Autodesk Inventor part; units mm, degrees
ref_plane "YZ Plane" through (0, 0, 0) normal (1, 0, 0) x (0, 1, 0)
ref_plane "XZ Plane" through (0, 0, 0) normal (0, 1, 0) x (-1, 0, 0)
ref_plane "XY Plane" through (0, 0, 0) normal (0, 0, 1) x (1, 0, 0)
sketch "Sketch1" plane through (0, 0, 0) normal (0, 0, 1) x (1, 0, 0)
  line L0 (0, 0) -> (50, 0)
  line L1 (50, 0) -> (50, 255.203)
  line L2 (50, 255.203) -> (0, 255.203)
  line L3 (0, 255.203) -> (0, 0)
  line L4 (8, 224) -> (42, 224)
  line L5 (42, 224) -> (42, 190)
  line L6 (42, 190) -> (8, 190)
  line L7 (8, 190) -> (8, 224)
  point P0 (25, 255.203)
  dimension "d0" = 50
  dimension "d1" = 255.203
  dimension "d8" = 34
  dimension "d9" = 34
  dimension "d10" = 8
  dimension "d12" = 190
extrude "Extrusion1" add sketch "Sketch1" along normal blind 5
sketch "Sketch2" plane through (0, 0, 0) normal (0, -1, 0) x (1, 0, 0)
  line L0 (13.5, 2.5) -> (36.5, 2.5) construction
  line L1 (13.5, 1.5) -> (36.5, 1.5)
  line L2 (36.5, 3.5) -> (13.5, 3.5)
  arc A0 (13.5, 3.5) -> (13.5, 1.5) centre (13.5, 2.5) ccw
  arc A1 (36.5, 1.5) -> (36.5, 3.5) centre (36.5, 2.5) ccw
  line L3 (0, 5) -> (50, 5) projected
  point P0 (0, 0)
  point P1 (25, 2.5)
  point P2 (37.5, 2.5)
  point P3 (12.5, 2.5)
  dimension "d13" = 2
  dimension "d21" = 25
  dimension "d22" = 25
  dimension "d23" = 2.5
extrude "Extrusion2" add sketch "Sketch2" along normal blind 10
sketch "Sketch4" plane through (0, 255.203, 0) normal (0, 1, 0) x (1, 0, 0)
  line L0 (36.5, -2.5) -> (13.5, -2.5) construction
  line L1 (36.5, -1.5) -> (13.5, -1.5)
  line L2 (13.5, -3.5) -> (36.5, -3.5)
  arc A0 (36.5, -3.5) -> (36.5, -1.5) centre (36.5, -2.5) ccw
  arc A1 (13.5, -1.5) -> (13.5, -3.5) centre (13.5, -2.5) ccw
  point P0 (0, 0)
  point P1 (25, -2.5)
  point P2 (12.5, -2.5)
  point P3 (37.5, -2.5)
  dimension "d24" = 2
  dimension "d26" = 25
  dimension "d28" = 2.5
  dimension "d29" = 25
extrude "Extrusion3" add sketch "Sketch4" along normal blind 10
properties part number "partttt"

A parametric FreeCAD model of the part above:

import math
import FreeCAD as App
import Part
import Sketcher
Q = App.Units.Quantity

doc = App.newDocument("Part")
body = doc.addObject("PartDesign::Body", "Body")

# Sketch on XY plane
sketch1 = doc.addObject("Sketcher::SketchObject", "Sketch")
body.addObject(sketch1)
sketch1.AttachmentSupport = (doc.XY_Plane, [""])
sketch1.MapMode = "FlatFace"
sketch1.addGeometry([
    Part.LineSegment(App.Vector(0, 255.203, 0), App.Vector(0, 0, 0)),  # 0
    Part.LineSegment(App.Vector(0, 0, 0), App.Vector(50, 0, 0)),  # 1
    Part.LineSegment(App.Vector(50, 0, 0), App.Vector(50, 255.203, 0)),  # 2
    Part.LineSegment(App.Vector(50, 255.203, 0), App.Vector(0, 255.203, 0)),  # 3
    Part.LineSegment(App.Vector(8, 190, 0), App.Vector(8, 224, 0)),  # 4
    Part.LineSegment(App.Vector(8, 224, 0), App.Vector(42, 224, 0)),  # 5
    Part.LineSegment(App.Vector(42, 224, 0), App.Vector(42, 190, 0)),  # 6
    Part.LineSegment(App.Vector(42, 190, 0), App.Vector(8, 190, 0)),  # 7
], False)
sketch1.addConstraint([
    Sketcher.Constraint("Coincident", 0, 2, 1, 1),
    Sketcher.Constraint("Coincident", 1, 2, 2, 1),
    Sketcher.Constraint("Coincident", 2, 2, 3, 1),
    Sketcher.Constraint("Coincident", 3, 2, 0, 1),
    Sketcher.Constraint("Coincident", 4, 2, 5, 1),
    Sketcher.Constraint("Coincident", 5, 2, 6, 1),
    Sketcher.Constraint("Coincident", 6, 2, 7, 1),
    Sketcher.Constraint("Coincident", 7, 2, 4, 1),
    Sketcher.Constraint("Vertical", 0),
    Sketcher.Constraint("Horizontal", 1),
    Sketcher.Constraint("Vertical", 2),
    Sketcher.Constraint("Horizontal", 3),
    Sketcher.Constraint("Vertical", 4),
    Sketcher.Constraint("Horizontal", 5),
    Sketcher.Constraint("Vertical", 6),
    Sketcher.Constraint("Horizontal", 7),
    Sketcher.Constraint("Coincident", 0, 2, -1, 1),
    Sketcher.Constraint("Equal", 7, 4),
    Sketcher.Constraint("DistanceX", 1, 1, 1, 2, Q("50 mm")),
    Sketcher.Constraint("DistanceX", 5, 1, 5, 2, Q("34 mm")),
    Sketcher.Constraint("DistanceX", -1, 1, 4, 2, Q("8 mm")),
    Sketcher.Constraint("DistanceY", -1, 1, 6, 2, Q("190 mm")),
    Sketcher.Constraint("DistanceY", 0, 2, 0, 1, Q("255.203 mm")),
])
pad1 = doc.addObject("PartDesign::Pad", "Pad")
body.addObject(pad1)
pad1.Profile = sketch1
pad1.Length = 5

# Sketch on XZ plane
sketch2 = doc.addObject("Sketcher::SketchObject", "Sketch001")
body.addObject(sketch2)
sketch2.AttachmentSupport = (doc.XZ_Plane, [""])
sketch2.MapMode = "FlatFace"
sketch2.addGeometry([
    Part.ArcOfCircle(Part.Circle(App.Vector(13.5, 2.5, 0), App.Vector(0, 0, 1), 1), math.radians(90), math.radians(270)),
    Part.LineSegment(App.Vector(13.5, 1.5, 0), App.Vector(36.5, 1.5, 0)),
    Part.ArcOfCircle(Part.Circle(App.Vector(36.5, 2.5, 0), App.Vector(0, 0, 1), 1), math.radians(-90), math.radians(90)),
    Part.LineSegment(App.Vector(36.5, 3.5, 0), App.Vector(13.5, 3.5, 0)),
], False)
sketch2.addConstraint([
    Sketcher.Constraint("Tangent", 0, 2, 1, 1),
    Sketcher.Constraint("Tangent", 1, 2, 2, 1),
    Sketcher.Constraint("Tangent", 2, 2, 3, 1),
    Sketcher.Constraint("Tangent", 3, 2, 0, 1),
    Sketcher.Constraint("Horizontal", 1),
    Sketcher.Constraint("Horizontal", 3),
    Sketcher.Constraint("Radius", 0, Q("1 mm")),
    Sketcher.Constraint("DistanceY", -1, 1, 0, 3, Q("2.5 mm")),
    Sketcher.Constraint("DistanceX", 1, 1, 1, 2, Q("23 mm")),
    Sketcher.Constraint("DistanceX", -1, 1, 0, 3, Q("13.5 mm")),
])
pad2 = doc.addObject("PartDesign::Pad", "Pad001")
body.addObject(pad2)
pad2.Profile = sketch2
pad2.Length = 10

# Sketch on XZ plane
sketch3 = doc.addObject("Sketcher::SketchObject", "Sketch002")
body.addObject(sketch3)
sketch3.AttachmentSupport = (doc.XZ_Plane, [""])
sketch3.MapMode = "FlatFace"
sketch3.AttachmentOffset = App.Placement(App.Vector(0, 0, -255.203), App.Rotation())
sketch3.addGeometry([
    Part.ArcOfCircle(Part.Circle(App.Vector(36.5, 2.5, 0), App.Vector(0, 0, 1), 1), math.radians(-90), math.radians(90)),
    Part.LineSegment(App.Vector(36.5, 1.5, 0), App.Vector(13.5, 1.5, 0)),
    Part.ArcOfCircle(Part.Circle(App.Vector(13.5, 2.5, 0), App.Vector(0, 0, 1), 1), math.radians(90), math.radians(270)),
    Part.LineSegment(App.Vector(13.5, 3.5, 0), App.Vector(36.5, 3.5, 0)),
], False)
sketch3.addConstraint([
    Sketcher.Constraint("Tangent", 0, 1, 1, 1),
    Sketcher.Constraint("Tangent", 1, 2, 2, 2),
    Sketcher.Constraint("Tangent", 2, 1, 3, 1),
    Sketcher.Constraint("Tangent", 3, 2, 0, 2),
    Sketcher.Constraint("Horizontal", 1),
    Sketcher.Constraint("Horizontal", 3),
    Sketcher.Constraint("Radius", 0, Q("1 mm")),
    Sketcher.Constraint("DistanceY", -1, 1, 0, 3, Q("2.5 mm")),
    Sketcher.Constraint("DistanceX", 1, 2, 1, 1, Q("23 mm")),
    Sketcher.Constraint("DistanceX", -1, 1, 0, 3, Q("36.5 mm")),
])
pad3 = doc.addObject("PartDesign::Pad", "Pad002")
body.addObject(pad3)
pad3.Profile = sketch3
pad3.Length = 10
pad3.Reversed = True

doc.recompute()
